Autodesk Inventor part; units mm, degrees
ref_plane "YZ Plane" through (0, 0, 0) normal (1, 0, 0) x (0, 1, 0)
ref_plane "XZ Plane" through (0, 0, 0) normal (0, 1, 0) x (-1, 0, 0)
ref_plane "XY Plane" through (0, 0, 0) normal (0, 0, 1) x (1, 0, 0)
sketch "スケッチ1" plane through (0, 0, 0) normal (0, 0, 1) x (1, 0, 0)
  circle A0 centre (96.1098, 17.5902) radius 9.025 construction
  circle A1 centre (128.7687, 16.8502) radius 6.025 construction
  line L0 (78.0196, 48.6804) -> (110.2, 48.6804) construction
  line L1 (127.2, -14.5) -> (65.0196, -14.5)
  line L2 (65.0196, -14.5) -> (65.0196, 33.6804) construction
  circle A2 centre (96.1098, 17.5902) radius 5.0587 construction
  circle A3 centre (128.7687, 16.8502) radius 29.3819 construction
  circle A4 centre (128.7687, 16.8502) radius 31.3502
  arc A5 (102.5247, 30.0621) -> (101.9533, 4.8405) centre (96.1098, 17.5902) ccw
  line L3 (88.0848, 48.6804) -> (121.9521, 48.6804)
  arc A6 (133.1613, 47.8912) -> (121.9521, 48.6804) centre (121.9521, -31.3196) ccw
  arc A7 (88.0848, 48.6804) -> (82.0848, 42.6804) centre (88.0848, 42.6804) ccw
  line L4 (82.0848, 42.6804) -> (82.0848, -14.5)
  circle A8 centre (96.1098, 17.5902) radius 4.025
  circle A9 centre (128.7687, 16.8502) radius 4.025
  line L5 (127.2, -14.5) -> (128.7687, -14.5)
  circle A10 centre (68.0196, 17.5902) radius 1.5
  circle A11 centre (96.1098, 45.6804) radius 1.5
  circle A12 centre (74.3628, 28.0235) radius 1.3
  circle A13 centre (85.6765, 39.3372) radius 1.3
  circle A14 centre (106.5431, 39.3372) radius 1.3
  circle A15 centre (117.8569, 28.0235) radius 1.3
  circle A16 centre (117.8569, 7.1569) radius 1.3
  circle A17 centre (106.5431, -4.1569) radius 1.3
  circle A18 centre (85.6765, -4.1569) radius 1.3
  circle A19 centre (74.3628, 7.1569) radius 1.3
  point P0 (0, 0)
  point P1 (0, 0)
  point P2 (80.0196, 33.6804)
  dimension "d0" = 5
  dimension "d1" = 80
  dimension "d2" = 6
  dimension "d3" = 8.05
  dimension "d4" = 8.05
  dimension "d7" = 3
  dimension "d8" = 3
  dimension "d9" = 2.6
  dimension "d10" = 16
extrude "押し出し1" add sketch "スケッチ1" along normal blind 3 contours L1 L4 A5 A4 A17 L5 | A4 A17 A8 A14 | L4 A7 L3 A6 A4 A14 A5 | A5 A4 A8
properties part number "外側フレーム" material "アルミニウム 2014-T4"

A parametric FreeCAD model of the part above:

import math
import FreeCAD as App
import Part
import Sketcher
Q = App.Units.Quantity

doc = App.newDocument("Part")
body = doc.addObject("PartDesign::Body", "Body")

# Sketch on XY plane
sketch1 = body.newObject("Sketcher::SketchObject", "Sketch")
sketch1.AttachmentSupport = (doc.getObject("XY_Plane"), [""])
sketch1.MapMode = "FlatFace"
sketch1.addGeometry([
    Part.LineSegment(App.Vector(82.1, -14.5, 0), App.Vector(128.8, -14.5, 0)),  # 0
    Part.ArcOfCircle(Part.Circle(App.Vector(128.8, 16.9, 0), App.Vector(0, 0, 1), 31.4), math.radians(-90), math.radians(82)),  # 1
    Part.ArcOfCircle(Part.Circle(App.Vector(122, -31.3, 0), App.Vector(0, 0, 1), 80), math.radians(81.95), math.radians(90)),  # 2
    Part.LineSegment(App.Vector(122, 48.7, 0), App.Vector(88.1, 48.7, 0)),  # 3
    Part.ArcOfCircle(Part.Circle(App.Vector(88.1, 42.7, 0), App.Vector(0, 0, 1), 6), math.radians(90), math.radians(180)),  # 4
    Part.LineSegment(App.Vector(82.1, 42.7, 0), App.Vector(82.1, -14.5, 0)),  # 5
    Part.Circle(App.Vector(106.5, -4.2, 0), App.Vector(0, 0, 1), 1.3),  # 6
    Part.Circle(App.Vector(85.7, -4.2, 0), App.Vector(0, 0, 1), 1.3),  # 7
    Part.Circle(App.Vector(96.1, 17.6, 0), App.Vector(0, 0, 1), 4),  # 8
    Part.Circle(App.Vector(128.8, 16.9, 0), App.Vector(0, 0, 1), 4),  # 9
    Part.Circle(App.Vector(117.9, 28, 0), App.Vector(0, 0, 1), 1.3),  # 10
    Part.Circle(App.Vector(117.9, 7.2, 0), App.Vector(0, 0, 1), 1.3),  # 11
    Part.Circle(App.Vector(106.5, 39.3, 0), App.Vector(0, 0, 1), 1.3),  # 12
    Part.Circle(App.Vector(96.1, 45.7, 0), App.Vector(0, 0, 1), 1.5),  # 13
    Part.Circle(App.Vector(85.7, 39.3, 0), App.Vector(0, 0, 1), 1.3),  # 14
], False)
sketch1.addConstraint([
    Sketcher.Constraint("Tangent", 0, 2, 1, 1),
    Sketcher.Constraint("Tangent", 1, 2, 2, 1),
    Sketcher.Constraint("Tangent", 2, 2, 3, 1),
    Sketcher.Constraint("Tangent", 3, 2, 4, 1),
    Sketcher.Constraint("Tangent", 4, 2, 5, 1),
    Sketcher.Constraint("Coincident", 5, 2, 0, 1),
    Sketcher.Constraint("Horizontal", 0),
    Sketcher.Constraint("Horizontal", 3),
    Sketcher.Constraint("Vertical", 5),
    Sketcher.Constraint("Coincident", 9, 3, 1, 3),
    Sketcher.Constraint("Equal", 6, 7),
    Sketcher.Constraint("Equal", 8, 9),
    Sketcher.Constraint("Equal", 7, 10),
    Sketcher.Constraint("Equal", 10, 11),
    Sketcher.Constraint("Equal", 11, 12),
    Sketcher.Constraint("Equal", 12, 14),
    Sketcher.Constraint("Horizontal", 6, 3, 7, 3),
    Sketcher.Constraint("Horizontal", 12, 3, 14, 3),
    Sketcher.Constraint("Vertical", 10, 3, 11, 3),
    Sketcher.Constraint("Vertical", 6, 3, 12, 3),
    Sketcher.Constraint("Vertical", 8, 3, 13, 3),
    Sketcher.Constraint("Vertical", 7, 3, 14, 3),
    Sketcher.Constraint("Diameter", 13, Q("3 mm")),
    Sketcher.Constraint("Radius", 4, Q("6 mm")),
    Sketcher.Constraint("Diameter", 6, Q("2.6 mm")),
    Sketcher.Constraint("Diameter", 8, Q("8.05 mm")),
    Sketcher.Constraint("DistanceY", 4, 3, 13, 3, Q("3 mm")),
    Sketcher.Constraint("DistanceY", 0, 2, -1, 1, Q("14.5 mm")),
    Sketcher.Constraint("Radius", 1, Q("31.3502 mm")),
    Sketcher.Constraint("Radius", 2, Q("80.0038 mm")),
    Sketcher.Constraint("DistanceX", 0, 1, 0, 2, Q("46.684 mm")),
    Sketcher.Constraint("DistanceY", 1, 3, 8, 3, Q("0.74 mm")),
    Sketcher.Constraint("DistanceX", 3, 2, 3, 1, Q("33.8673 mm")),
    Sketcher.Constraint("DistanceX", -1, 1, 6, 3, Q("106.543 mm")),
    Sketcher.Constraint("DistanceY", 6, 3, -1, 1, Q("4.157 mm")),
    Sketcher.Constraint("DistanceX", -1, 1, 10, 3, Q("117.857 mm")),
    Sketcher.Constraint("DistanceY", -1, 1, 11, 3, Q("7.157 mm")),
    Sketcher.Constraint("DistanceX", -1, 1, 2, 2, Q("121.952 mm")),
    Sketcher.Constraint("DistanceX", 4, 3, 8, 3, Q("8.025 mm")),
    Sketcher.Constraint("DistanceY", 10, 3, 4, 3, Q("14.657 mm")),
    Sketcher.Constraint("DistanceY", 8, 3, 12, 3, Q("21.747 mm")),
    Sketcher.Constraint("DistanceX", -1, 1, 7, 3, Q("85.6765 mm")),
])
pad1 = body.newObject("PartDesign::Pad", "Pad")
pad1.Profile = sketch1
pad1.Length = 3

doc.recompute()
